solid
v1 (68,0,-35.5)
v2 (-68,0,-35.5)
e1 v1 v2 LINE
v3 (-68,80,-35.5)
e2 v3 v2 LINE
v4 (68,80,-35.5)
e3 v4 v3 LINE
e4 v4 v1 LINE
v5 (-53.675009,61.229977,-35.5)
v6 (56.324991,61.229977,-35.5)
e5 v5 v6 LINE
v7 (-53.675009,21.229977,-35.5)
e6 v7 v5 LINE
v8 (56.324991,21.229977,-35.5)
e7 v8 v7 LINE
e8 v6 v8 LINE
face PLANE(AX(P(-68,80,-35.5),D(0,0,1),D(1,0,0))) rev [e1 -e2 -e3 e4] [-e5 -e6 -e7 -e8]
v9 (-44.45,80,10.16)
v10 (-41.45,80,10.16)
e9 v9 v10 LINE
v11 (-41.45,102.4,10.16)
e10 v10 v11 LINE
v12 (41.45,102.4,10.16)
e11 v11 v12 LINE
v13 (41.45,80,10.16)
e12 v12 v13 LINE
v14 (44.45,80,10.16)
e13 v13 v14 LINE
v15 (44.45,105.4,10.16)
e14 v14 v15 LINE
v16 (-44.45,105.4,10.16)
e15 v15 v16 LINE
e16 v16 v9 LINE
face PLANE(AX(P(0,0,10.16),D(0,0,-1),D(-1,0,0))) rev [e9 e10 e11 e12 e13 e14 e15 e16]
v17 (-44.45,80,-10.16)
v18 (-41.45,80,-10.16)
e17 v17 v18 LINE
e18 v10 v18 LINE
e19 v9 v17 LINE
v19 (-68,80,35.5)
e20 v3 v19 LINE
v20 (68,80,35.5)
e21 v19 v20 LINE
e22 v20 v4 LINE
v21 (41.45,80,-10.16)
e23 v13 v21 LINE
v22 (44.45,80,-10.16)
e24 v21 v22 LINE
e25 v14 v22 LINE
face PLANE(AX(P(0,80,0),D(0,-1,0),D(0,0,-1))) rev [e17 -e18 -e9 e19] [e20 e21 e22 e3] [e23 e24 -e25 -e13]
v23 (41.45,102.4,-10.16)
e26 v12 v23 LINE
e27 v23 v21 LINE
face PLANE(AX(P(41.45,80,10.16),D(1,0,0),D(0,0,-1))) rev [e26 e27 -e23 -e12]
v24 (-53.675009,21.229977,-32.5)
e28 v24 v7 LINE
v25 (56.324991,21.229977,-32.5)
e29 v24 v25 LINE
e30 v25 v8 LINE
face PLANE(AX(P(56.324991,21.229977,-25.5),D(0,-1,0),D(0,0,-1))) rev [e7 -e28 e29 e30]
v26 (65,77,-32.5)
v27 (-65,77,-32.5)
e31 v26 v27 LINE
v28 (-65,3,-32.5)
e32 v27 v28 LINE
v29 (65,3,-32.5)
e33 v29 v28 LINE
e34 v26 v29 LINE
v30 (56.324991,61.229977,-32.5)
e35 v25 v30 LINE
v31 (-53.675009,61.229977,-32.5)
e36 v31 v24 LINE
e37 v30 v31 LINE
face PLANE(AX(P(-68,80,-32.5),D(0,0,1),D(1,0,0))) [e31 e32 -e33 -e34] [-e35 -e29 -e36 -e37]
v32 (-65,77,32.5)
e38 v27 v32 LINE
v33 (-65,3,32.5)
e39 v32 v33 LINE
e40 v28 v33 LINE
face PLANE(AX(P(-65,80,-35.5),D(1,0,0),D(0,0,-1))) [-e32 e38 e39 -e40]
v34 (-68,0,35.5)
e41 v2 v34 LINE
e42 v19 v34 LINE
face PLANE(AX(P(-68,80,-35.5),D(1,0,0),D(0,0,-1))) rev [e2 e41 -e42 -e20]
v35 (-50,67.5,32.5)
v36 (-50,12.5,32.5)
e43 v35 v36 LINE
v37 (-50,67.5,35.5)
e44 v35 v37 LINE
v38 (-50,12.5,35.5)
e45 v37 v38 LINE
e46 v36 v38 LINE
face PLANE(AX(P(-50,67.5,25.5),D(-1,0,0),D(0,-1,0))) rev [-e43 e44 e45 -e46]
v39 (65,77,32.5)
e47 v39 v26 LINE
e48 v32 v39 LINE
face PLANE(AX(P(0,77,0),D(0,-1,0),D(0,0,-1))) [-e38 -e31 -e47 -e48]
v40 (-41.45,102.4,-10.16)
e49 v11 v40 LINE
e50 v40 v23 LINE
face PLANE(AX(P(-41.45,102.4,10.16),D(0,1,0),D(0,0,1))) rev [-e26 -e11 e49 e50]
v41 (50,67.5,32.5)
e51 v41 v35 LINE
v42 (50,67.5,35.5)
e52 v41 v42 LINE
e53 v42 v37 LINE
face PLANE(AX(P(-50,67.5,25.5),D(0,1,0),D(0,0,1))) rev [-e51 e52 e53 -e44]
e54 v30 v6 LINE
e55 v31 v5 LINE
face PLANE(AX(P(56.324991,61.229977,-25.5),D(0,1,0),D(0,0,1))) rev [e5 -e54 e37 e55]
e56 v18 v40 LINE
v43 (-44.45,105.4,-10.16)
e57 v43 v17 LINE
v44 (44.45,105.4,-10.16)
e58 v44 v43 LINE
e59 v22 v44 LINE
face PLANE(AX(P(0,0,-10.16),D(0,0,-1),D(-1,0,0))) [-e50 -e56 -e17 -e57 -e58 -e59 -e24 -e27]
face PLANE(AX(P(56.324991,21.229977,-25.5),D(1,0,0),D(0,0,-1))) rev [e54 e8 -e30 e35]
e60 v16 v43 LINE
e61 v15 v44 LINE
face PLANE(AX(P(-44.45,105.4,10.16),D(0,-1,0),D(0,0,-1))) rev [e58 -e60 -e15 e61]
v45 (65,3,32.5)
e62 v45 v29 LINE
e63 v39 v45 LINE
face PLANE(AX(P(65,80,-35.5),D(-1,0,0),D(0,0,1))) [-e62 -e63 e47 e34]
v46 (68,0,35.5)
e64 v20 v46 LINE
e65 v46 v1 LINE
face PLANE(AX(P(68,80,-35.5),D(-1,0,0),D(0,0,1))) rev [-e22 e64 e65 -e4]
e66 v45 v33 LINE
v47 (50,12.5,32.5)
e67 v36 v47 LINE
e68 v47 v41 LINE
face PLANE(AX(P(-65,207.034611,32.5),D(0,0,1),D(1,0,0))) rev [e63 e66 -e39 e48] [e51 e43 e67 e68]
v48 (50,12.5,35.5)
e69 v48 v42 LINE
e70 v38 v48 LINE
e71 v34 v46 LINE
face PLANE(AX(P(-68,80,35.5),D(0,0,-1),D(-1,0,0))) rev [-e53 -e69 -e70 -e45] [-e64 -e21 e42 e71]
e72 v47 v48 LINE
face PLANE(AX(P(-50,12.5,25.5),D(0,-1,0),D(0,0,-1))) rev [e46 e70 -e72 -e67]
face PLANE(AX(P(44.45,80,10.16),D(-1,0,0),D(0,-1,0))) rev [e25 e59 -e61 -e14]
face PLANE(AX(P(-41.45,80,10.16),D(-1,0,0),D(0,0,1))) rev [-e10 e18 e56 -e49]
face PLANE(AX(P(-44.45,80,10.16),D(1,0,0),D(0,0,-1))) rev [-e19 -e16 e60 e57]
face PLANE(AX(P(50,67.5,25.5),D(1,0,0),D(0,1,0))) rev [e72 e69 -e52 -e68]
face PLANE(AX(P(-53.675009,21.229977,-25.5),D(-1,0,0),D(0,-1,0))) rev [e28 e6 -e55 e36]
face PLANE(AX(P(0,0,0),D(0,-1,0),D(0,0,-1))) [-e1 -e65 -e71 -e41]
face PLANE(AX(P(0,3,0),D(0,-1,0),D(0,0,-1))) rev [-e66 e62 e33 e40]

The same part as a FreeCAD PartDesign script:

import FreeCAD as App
import Part
import Sketcher
Q = App.Units.Quantity


def faces_at(feature, points):
    """Names of the faces that lie closest to the given points."""
    faces = feature.Shape.Faces
    near = lambda p: min(range(len(faces)), key=lambda i: faces[i].distToShape(Part.Vertex(*p))[0])
    return sorted({f"Face{near(p) + 1}" for p in points})

doc = App.newDocument("Part")
params = doc.addObject("Spreadsheet::Sheet", "Params")
for row, (alias, value) in enumerate([
    ("sketch1_width", "136 mm"),
    ("sketch1_height", "71 mm"),
    ("pad1_length", "80 mm"),
    ("thickness_wall", "3 mm"),
    ("sketch2_width", "130 mm"),
    ("sketch2_height", "3 mm"),
    ("pad2_length", "74 mm"),
    ("sketch3_width", "3 mm"),
    ("sketch3_width2", "82.9 mm"),
    ("sketch3_height", "25.4 mm"),
    ("sketch3_height2", "22.4 mm"),
    ("pad3_length", "20.32 mm"),
    ("sketch4_width", "100 mm"),
    ("sketch4_height", "55 mm"),
    ("pocket1_length", "10 mm"),
    ("sketch5_width", "110 mm"),
    ("sketch5_height", "40 mm"),
    ("pocket2_length", "10 mm"),
], start=1):
    params.set(f"A{row}", alias)
    params.set(f"B{row}", "=" + value)
    params.setAlias(f"B{row}", alias)

body = doc.addObject("PartDesign::Body", "Body")

# Sketch on XZ plane
sketch1 = body.newObject("Sketcher::SketchObject", "Sketch")
sketch1.AttachmentSupport = (doc.getObject("XZ_Plane"), [""])
sketch1.MapMode = "FlatFace"
sketch1.addGeometry(Part.LineSegment(App.Vector(-68, -36, 0), App.Vector(-68, 36, 0)), False)
sketch1.addGeometry(Part.LineSegment(App.Vector(-68, 36, 0), App.Vector(68, 36, 0)), False)
sketch1.addGeometry(Part.LineSegment(App.Vector(68, 36, 0), App.Vector(68, -36, 0)), False)
sketch1.addGeometry(Part.LineSegment(App.Vector(68, -36, 0), App.Vector(-68, -36, 0)), False)
sketch1.addConstraint(Sketcher.Constraint("Coincident", 0, 2, 1, 1))
sketch1.addConstraint(Sketcher.Constraint("Coincident", 1, 2, 2, 1))
sketch1.addConstraint(Sketcher.Constraint("Coincident", 2, 2, 3, 1))
sketch1.addConstraint(Sketcher.Constraint("Coincident", 3, 2, 0, 1))
sketch1.addConstraint(Sketcher.Constraint("Vertical", 0))
sketch1.addConstraint(Sketcher.Constraint("Horizontal", 1))
sketch1.addConstraint(Sketcher.Constraint("Vertical", 2))
sketch1.addConstraint(Sketcher.Constraint("Horizontal", 3))
sketch1.addConstraint(Sketcher.Constraint("Symmetric", 0, 2, 2, 2, -1, 1))
sketch1.addConstraint(Sketcher.Constraint("DistanceX", 1, 1, 1, 2, Q("136 mm")))
sketch1.addConstraint(Sketcher.Constraint("DistanceY", 0, 1, 0, 2, Q("71 mm")))
sketch1.setExpression("Constraints[9]", "Params.sketch1_width")
sketch1.setExpression("Constraints[10]", "Params.sketch1_height")
pad1 = body.newObject("PartDesign::Pad", "Pad")
pad1.Profile = sketch1
pad1.setExpression("Length", "Params.pad1_length")
pad1.Reversed = True
doc.recompute()

thickness = body.newObject("PartDesign::Thickness", "Thickness")
thickness.Base = (pad1, faces_at(pad1, [(0, 40, 35.5)]))
thickness.setExpression("Value", "Params.thickness_wall")
thickness.Reversed = True
thickness.Join = "Intersection"

# Sketch on XZ plane
sketch2 = body.newObject("Sketcher::SketchObject", "Sketch001")
sketch2.AttachmentSupport = (doc.getObject("XZ_Plane"), [""])
sketch2.MapMode = "FlatFace"
sketch2.AttachmentOffset = App.Placement(App.Vector(0, 0, -3), App.Rotation())
sketch2.addGeometry(Part.LineSegment(App.Vector(-65, 32.5, 0), App.Vector(-65, 35.5, 0)), False)
sketch2.addGeometry(Part.LineSegment(App.Vector(-65, 35.5, 0), App.Vector(65, 35.5, 0)), False)
sketch2.addGeometry(Part.LineSegment(App.Vector(65, 35.5, 0), App.Vector(65, 32.5, 0)), False)
sketch2.addGeometry(Part.LineSegment(App.Vector(65, 32.5, 0), App.Vector(-65, 32.5, 0)), False)
sketch2.addConstraint(Sketcher.Constraint("Coincident", 0, 2, 1, 1))
sketch2.addConstraint(Sketcher.Constraint("Coincident", 1, 2, 2, 1))
sketch2.addConstraint(Sketcher.Constraint("Coincident", 2, 2, 3, 1))
sketch2.addConstraint(Sketcher.Constraint("Coincident", 3, 2, 0, 1))
sketch2.addConstraint(Sketcher.Constraint("Vertical", 0))
sketch2.addConstraint(Sketcher.Constraint("Horizontal", 1))
sketch2.addConstraint(Sketcher.Constraint("Vertical", 2))
sketch2.addConstraint(Sketcher.Constraint("Horizontal", 3))
sketch2.addConstraint(Sketcher.Constraint("DistanceX", 1, 1, 1, 2, Q("130 mm")))
sketch2.addConstraint(Sketcher.Constraint("DistanceY", 0, 1, 0, 2, Q("3 mm")))
sketch2.addConstraint(Sketcher.Constraint("DistanceX", 0, 2, -1, 1, Q("65 mm")))
sketch2.addConstraint(Sketcher.Constraint("DistanceY", -1, 1, 0, 2, Q("35.5 mm")))
sketch2.setExpression("Constraints[8]", "Params.sketch2_width")
sketch2.setExpression("Constraints[9]", "Params.sketch2_height")
pad2 = body.newObject("PartDesign::Pad", "Pad001")
pad2.Profile = sketch2
pad2.setExpression("Length", "Params.pad2_length")
pad2.Reversed = True

# Sketch on XY plane
sketch3 = body.newObject("Sketcher::SketchObject", "Sketch002")
sketch3.AttachmentSupport = (doc.getObject("XY_Plane"), [""])
sketch3.MapMode = "FlatFace"
sketch3.addGeometry(Part.LineSegment(App.Vector(-44.5, 105.4, 0), App.Vector(-44.5, 80, 0)), False)
sketch3.addGeometry(Part.LineSegment(App.Vector(-44.5, 80, 0), App.Vector(-41.5, 80, 0)), False)
sketch3.addGeometry(Part.LineSegment(App.Vector(-41.5, 80, 0), App.Vector(-41.5, 102.4, 0)), False)
sketch3.addGeometry(Part.LineSegment(App.Vector(-41.5, 102.4, 0), App.Vector(41.5, 102.4, 0)), False)
sketch3.addGeometry(Part.LineSegment(App.Vector(41.5, 102.4, 0), App.Vector(41.5, 80, 0)), False)
sketch3.addGeometry(Part.LineSegment(App.Vector(41.5, 80, 0), App.Vector(44.5, 80, 0)), False)
sketch3.addGeometry(Part.LineSegment(App.Vector(44.5, 80, 0), App.Vector(44.5, 105.4, 0)), False)
sketch3.addGeometry(Part.LineSegment(App.Vector(44.5, 105.4, 0), App.Vector(-44.5, 105.4, 0)), False)
sketch3.addConstraint(Sketcher.Constraint("Coincident", 0, 2, 1, 1))
sketch3.addConstraint(Sketcher.Constraint("Coincident", 1, 2, 2, 1))
sketch3.addConstraint(Sketcher.Constraint("Coincident", 2, 2, 3, 1))
sketch3.addConstraint(Sketcher.Constraint("Coincident", 3, 2, 4, 1))
sketch3.addConstraint(Sketcher.Constraint("Coincident", 4, 2, 5, 1))
sketch3.addConstraint(Sketcher.Constraint("Coincident", 5, 2, 6, 1))
sketch3.addConstraint(Sketcher.Constraint("Coincident", 6, 2, 7, 1))
sketch3.addConstraint(Sketcher.Constraint("Coincident", 7, 2, 0, 1))
sketch3.addConstraint(Sketcher.Constraint("Vertical", 0))
sketch3.addConstraint(Sketcher.Constraint("Horizontal", 1))
sketch3.addConstraint(Sketcher.Constraint("Vertical", 2))
sketch3.addConstraint(Sketcher.Constraint("Horizontal", 3))
sketch3.addConstraint(Sketcher.Constraint("Vertical", 4))
sketch3.addConstraint(Sketcher.Constraint("Horizontal", 5))
sketch3.addConstraint(Sketcher.Constraint("Vertical", 6))
sketch3.addConstraint(Sketcher.Constraint("Horizontal", 7))
sketch3.addConstraint(Sketcher.Constraint("Symmetric", 1, 2, 4, 2, -2))
sketch3.addConstraint(Sketcher.Constraint("Equal", 1, 5))
sketch3.addConstraint(Sketcher.Constraint("DistanceX", 1, 1, 1, 2, Q("3 mm")))
sketch3.addConstraint(Sketcher.Constraint("DistanceX", 3, 1, 3, 2, Q("82.9 mm")))
sketch3.addConstraint(Sketcher.Constraint("DistanceY", 0, 2, 0, 1, Q("25.4 mm")))
sketch3.addConstraint(Sketcher.Constraint("DistanceY", 2, 1, 2, 2, Q("22.4 mm")))
sketch3.addConstraint(Sketcher.Constraint("DistanceY", -1, 1, 0, 2, Q("80 mm")))
sketch3.setExpression("Constraints[18]", "Params.sketch3_width")
sketch3.setExpression("Constraints[19]", "Params.sketch3_width2")
sketch3.setExpression("Constraints[20]", "Params.sketch3_height")
sketch3.setExpression("Constraints[21]", "Params.sketch3_height2")
pad3 = body.newObject("PartDesign::Pad", "Pad002")
pad3.Profile = sketch3
pad3.setExpression("Length", "Params.pad3_length")
pad3.Midplane = True

# Sketch on XY plane
sketch4 = body.newObject("Sketcher::SketchObject", "Sketch003")
sketch4.AttachmentSupport = (doc.getObject("XY_Plane"), [""])
sketch4.MapMode = "FlatFace"
sketch4.AttachmentOffset = App.Placement(App.Vector(0, 0, 35.5), App.Rotation())
sketch4.addGeometry(Part.LineSegment(App.Vector(-50, 68, 0), App.Vector(-50, 12, 0)), False)
sketch4.addGeometry(Part.LineSegment(App.Vector(-50, 12, 0), App.Vector(50, 12, 0)), False)
sketch4.addGeometry(Part.LineSegment(App.Vector(50, 12, 0), App.Vector(50, 68, 0)), False)
sketch4.addGeometry(Part.LineSegment(App.Vector(50, 68, 0), App.Vector(-50, 68, 0)), False)
sketch4.addConstraint(Sketcher.Constraint("Coincident", 0, 2, 1, 1))
sketch4.addConstraint(Sketcher.Constraint("Coincident", 1, 2, 2, 1))
sketch4.addConstraint(Sketcher.Constraint("Coincident", 2, 2, 3, 1))
sketch4.addConstraint(Sketcher.Constraint("Coincident", 3, 2, 0, 1))
sketch4.addConstraint(Sketcher.Constraint("Vertical", 0))
sketch4.addConstraint(Sketcher.Constraint("Horizontal", 1))
sketch4.addConstraint(Sketcher.Constraint("Vertical", 2))
sketch4.addConstraint(Sketcher.Constraint("Horizontal", 3))
sketch4.addConstraint(Sketcher.Constraint("DistanceX", 1, 1, 1, 2, Q("100 mm")))
sketch4.addConstraint(Sketcher.Constraint("DistanceY", 0, 2, 0, 1, Q("55 mm")))
sketch4.addConstraint(Sketcher.Constraint("DistanceX", 0, 2, -1, 1, Q("50 mm")))
sketch4.addConstraint(Sketcher.Constraint("DistanceY", -1, 1, 0, 2, Q("12.5 mm")))
sketch4.setExpression("Constraints[8]", "Params.sketch4_width")
sketch4.setExpression("Constraints[9]", "Params.sketch4_height")
pocket1 = body.newObject("PartDesign::Pocket", "Pocket")
pocket1.Profile = sketch4
pocket1.setExpression("Length", "Params.pocket1_length")

# Sketch on XY plane
sketch5 = body.newObject("Sketcher::SketchObject", "Sketch004")
sketch5.AttachmentSupport = (doc.getObject("XY_Plane"), [""])
sketch5.MapMode = "FlatFace"
sketch5.AttachmentOffset = App.Placement(App.Vector(0, 0, -35.5), App.Rotation())
sketch5.addGeometry(Part.LineSegment(App.Vector(56, 61, 0), App.Vector(56, 21, 0)), False)
sketch5.addGeometry(Part.LineSegment(App.Vector(56, 21, 0), App.Vector(-54, 21, 0)), False)
sketch5.addGeometry(Part.LineSegment(App.Vector(-54, 21, 0), App.Vector(-54, 61, 0)), False)
sketch5.addGeometry(Part.LineSegment(App.Vector(-54, 61, 0), App.Vector(56, 61, 0)), False)
sketch5.addConstraint(Sketcher.Constraint("Coincident", 0, 2, 1, 1))
sketch5.addConstraint(Sketcher.Constraint("Coincident", 1, 2, 2, 1))
sketch5.addConstraint(Sketcher.Constraint("Coincident", 2, 2, 3, 1))
sketch5.addConstraint(Sketcher.Constraint("Coincident", 3, 2, 0, 1))
sketch5.addConstraint(Sketcher.Constraint("Vertical", 0))
sketch5.addConstraint(Sketcher.Constraint("Horizontal", 1))
sketch5.addConstraint(Sketcher.Constraint("Vertical", 2))
sketch5.addConstraint(Sketcher.Constraint("Horizontal", 3))
sketch5.addConstraint(Sketcher.Constraint("DistanceX", 1, 2, 1, 1, Q("110 mm")))
sketch5.addConstraint(Sketcher.Constraint("DistanceY", 0, 2, 0, 1, Q("40 mm")))
sketch5.addConstraint(Sketcher.Constraint("DistanceX", -1, 1, 0, 2, Q("56.324991 mm")))
sketch5.addConstraint(Sketcher.Constraint("DistanceY", -1, 1, 0, 2, Q("21.229977 mm")))
sketch5.setExpression("Constraints[8]", "Params.sketch5_width")
sketch5.setExpression("Constraints[9]", "Params.sketch5_height")
pocket2 = body.newObject("PartDesign::Pocket", "Pocket001")
pocket2.Profile = sketch5
pocket2.setExpression("Length", "Params.pocket2_length")
pocket2.Reversed = True

doc.recompute()
